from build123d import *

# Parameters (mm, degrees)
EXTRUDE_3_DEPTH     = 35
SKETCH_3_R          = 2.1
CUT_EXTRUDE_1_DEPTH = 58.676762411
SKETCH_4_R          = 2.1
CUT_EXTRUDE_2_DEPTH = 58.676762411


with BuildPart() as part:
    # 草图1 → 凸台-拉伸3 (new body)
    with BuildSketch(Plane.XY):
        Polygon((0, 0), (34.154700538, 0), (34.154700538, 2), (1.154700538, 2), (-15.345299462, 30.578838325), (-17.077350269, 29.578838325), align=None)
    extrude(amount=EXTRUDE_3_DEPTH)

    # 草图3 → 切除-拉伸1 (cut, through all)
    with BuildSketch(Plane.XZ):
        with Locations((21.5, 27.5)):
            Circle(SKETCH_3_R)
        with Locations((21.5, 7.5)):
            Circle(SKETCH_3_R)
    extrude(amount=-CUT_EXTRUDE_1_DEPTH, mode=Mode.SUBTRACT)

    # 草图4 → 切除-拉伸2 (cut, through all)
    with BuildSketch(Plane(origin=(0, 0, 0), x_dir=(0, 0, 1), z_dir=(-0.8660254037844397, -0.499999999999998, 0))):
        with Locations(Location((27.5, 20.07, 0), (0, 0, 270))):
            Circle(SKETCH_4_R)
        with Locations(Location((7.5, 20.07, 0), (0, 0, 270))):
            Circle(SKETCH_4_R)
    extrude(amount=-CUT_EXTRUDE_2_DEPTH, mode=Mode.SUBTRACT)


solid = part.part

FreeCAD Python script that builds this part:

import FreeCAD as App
import Part
import Sketcher

V = App.Vector
Q = App.Units.Quantity

doc = App.newDocument("Part")
params = doc.addObject("Spreadsheet::Sheet", "Params")
for row, (alias, value) in enumerate([
    ("sketch1_width", "33 mm"),
    ("sketch1_height", "2 mm"),
    ("sketch1_length", "33 mm"),
    ("sketch1_length2", "2 mm"),
    ("pad1_length", "35 mm"),
    ("sketch2_diameter", "4.2 mm"),
    ("sketch3_diameter", "4.2 mm"),
], start=1):
    params.set(f"A{row}", alias)
    params.set(f"B{row}", "=" + value)
    params.setAlias(f"B{row}", alias)

body = doc.addObject("PartDesign::Body", "Body")

sketch1 = body.newObject("Sketcher::SketchObject", "Sketch")
sketch1.AttachmentSupport = (doc.getObject("XY_Plane"), [""])
sketch1.MapMode = "FlatFace"
sketch1.addGeometry(Part.LineSegment(V(0, 0, 0), V(34.2, 0, 0)), False)
sketch1.addGeometry(Part.LineSegment(V(34.2, 0, 0), V(34.2, 2, 0)), False)
sketch1.addGeometry(Part.LineSegment(V(34.2, 2, 0), V(1.2, 2, 0)), False)
sketch1.addGeometry(Part.LineSegment(V(1.2, 2, 0), V(-15.3, 30.6, 0)), False)
sketch1.addGeometry(Part.LineSegment(V(-15.3, 30.6, 0), V(-17.1, 29.6, 0)), False)
sketch1.addGeometry(Part.LineSegment(V(-17.1, 29.6, 0), V(0, 0, 0)), False)
sketch1.addConstraint(Sketcher.Constraint("Coincident", 0, 2, 1, 1))
sketch1.addConstraint(Sketcher.Constraint("Coincident", 1, 2, 2, 1))
sketch1.addConstraint(Sketcher.Constraint("Coincident", 2, 2, 3, 1))
sketch1.addConstraint(Sketcher.Constraint("Coincident", 3, 2, 4, 1))
sketch1.addConstraint(Sketcher.Constraint("Coincident", 4, 2, 5, 1))
sketch1.addConstraint(Sketcher.Constraint("Coincident", 5, 2, 0, 1))
sketch1.addConstraint(Sketcher.Constraint("Horizontal", 0))
sketch1.addConstraint(Sketcher.Constraint("Vertical", 1))
sketch1.addConstraint(Sketcher.Constraint("Horizontal", 2))
sketch1.addConstraint(Sketcher.Constraint("Coincident", 5, 2, -1, 1))
sketch1.addConstraint(Sketcher.Constraint("Perpendicular", 3, 4))
sketch1.addConstraint(Sketcher.Constraint("Perpendicular", 4, 5))
sketch1.addConstraint(Sketcher.Constraint("DistanceX", 2, 2, 2, 1, Q("33 mm")))
sketch1.addConstraint(Sketcher.Constraint("DistanceY", 1, 1, 1, 2, Q("2 mm")))
sketch1.addConstraint(Sketcher.Constraint("Angle", 3, Q("120 deg")))
sketch1.addConstraint(Sketcher.Constraint("Distance", 3, Q("33 mm")))
sketch1.addConstraint(Sketcher.Constraint("Distance", 4, Q("2 mm")))
sketch1.setExpression("Constraints[12]", "Params.sketch1_width")
sketch1.setExpression("Constraints[13]", "Params.sketch1_height")
sketch1.setExpression("Constraints[15]", "Params.sketch1_length")
sketch1.setExpression("Constraints[16]", "Params.sketch1_length2")
pad1 = body.newObject("PartDesign::Pad", "Pad")
pad1.Profile = sketch1
pad1.setExpression("Length", "Params.pad1_length")

sketch2 = body.newObject("Sketcher::SketchObject", "Sketch001")
sketch2.AttachmentSupport = (doc.getObject("XZ_Plane"), [""])
sketch2.MapMode = "FlatFace"
sketch2.addGeometry(Part.Circle(V(21.5, 27.5, 0), V(0, 0, 1), 2.1), False)
sketch2.addGeometry(Part.Circle(V(21.5, 7.5, 0), V(0, 0, 1), 2.1), False)
sketch2.addConstraint(Sketcher.Constraint("Equal", 0, 1))
sketch2.addConstraint(Sketcher.Constraint("Vertical", 0, 3, 1, 3))
sketch2.addConstraint(Sketcher.Constraint("Diameter", 0, Q("4.2 mm")))
sketch2.addConstraint(Sketcher.Constraint("DistanceY", 1, 3, 0, 3, Q("20 mm")))
sketch2.addConstraint(Sketcher.Constraint("DistanceX", -1, 1, 0, 3, Q("21.5 mm")))
sketch2.addConstraint(Sketcher.Constraint("DistanceY", -1, 1, 0, 3, Q("27.5 mm")))
sketch2.setExpression("Constraints[2]", "Params.sketch2_diameter")
pocket1 = body.newObject("PartDesign::Pocket", "Pocket")
pocket1.Profile = sketch2
pocket1.Type = "ThroughAll"

sketch3 = body.newObject("Sketcher::SketchObject", "Sketch002")
sketch3.Placement = App.Placement(V(0, 0, 0), App.Rotation(V(0, 0, 1), V(-0.5, 0.866025404, 0), V(-0.866025404, -0.5, 0), "ZXY"))
sketch3.addGeometry(Part.Circle(V(27.5, 20.1, 0), V(0, 0, 1), 2.1), False)
sketch3.addGeometry(Part.Circle(V(7.5, 20.1, 0), V(0, 0, 1), 2.1), False)
sketch3.addConstraint(Sketcher.Constraint("Equal", 0, 1))
sketch3.addConstraint(Sketcher.Constraint("Horizontal", 0, 3, 1, 3))
sketch3.addConstraint(Sketcher.Constraint("Diameter", 0, Q("4.2 mm")))
sketch3.addConstraint(Sketcher.Constraint("DistanceX", 1, 3, 0, 3, Q("20 mm")))
sketch3.addConstraint(Sketcher.Constraint("DistanceX", -1, 1, 0, 3, Q("27.5 mm")))
sketch3.addConstraint(Sketcher.Constraint("DistanceY", -1, 1, 0, 3, Q("20.07 mm")))
sketch3.setExpression("Constraints[2]", "Params.sketch3_diameter")
pocket2 = body.newObject("PartDesign::Pocket", "Pocket001")
pocket2.Profile = sketch3
pocket2.Type = "ThroughAll"

doc.recompute()
